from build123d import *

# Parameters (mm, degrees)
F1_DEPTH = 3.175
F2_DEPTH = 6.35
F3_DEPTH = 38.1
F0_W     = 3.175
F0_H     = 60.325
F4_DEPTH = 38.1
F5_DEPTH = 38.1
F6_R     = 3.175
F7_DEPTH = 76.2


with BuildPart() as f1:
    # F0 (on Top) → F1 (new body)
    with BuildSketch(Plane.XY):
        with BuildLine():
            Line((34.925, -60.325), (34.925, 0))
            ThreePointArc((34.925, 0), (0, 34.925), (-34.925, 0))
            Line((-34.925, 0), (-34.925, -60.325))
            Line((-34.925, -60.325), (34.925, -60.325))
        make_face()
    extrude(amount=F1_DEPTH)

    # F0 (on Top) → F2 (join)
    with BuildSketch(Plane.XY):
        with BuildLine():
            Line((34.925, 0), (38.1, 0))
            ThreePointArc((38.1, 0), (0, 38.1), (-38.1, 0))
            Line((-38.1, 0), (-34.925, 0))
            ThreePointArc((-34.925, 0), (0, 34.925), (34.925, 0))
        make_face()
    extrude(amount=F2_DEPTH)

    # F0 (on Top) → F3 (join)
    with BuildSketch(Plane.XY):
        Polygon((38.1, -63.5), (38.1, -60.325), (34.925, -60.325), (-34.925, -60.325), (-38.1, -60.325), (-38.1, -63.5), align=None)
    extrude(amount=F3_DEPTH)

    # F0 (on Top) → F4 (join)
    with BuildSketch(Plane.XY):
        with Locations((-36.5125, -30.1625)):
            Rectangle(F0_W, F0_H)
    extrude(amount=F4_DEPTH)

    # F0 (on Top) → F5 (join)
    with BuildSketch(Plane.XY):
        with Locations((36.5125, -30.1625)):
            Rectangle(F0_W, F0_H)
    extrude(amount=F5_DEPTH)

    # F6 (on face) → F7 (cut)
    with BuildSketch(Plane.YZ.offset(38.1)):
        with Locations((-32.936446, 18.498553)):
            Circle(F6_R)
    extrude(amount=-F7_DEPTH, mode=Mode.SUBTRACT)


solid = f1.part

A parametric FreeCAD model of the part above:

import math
import FreeCAD as App
import Part
import Sketcher

V = App.Vector
Q = App.Units.Quantity


def add_polygon(sketch, points):
    """Adds a closed chain of lines whose ends are joined by coincident constraints."""
    first, n = sketch.GeometryCount, len(points)
    for a, b in zip(points, points[1:] + points[:1]):
        sketch.addGeometry(Part.LineSegment(App.Vector(*a, 0), App.Vector(*b, 0)), False)
    for i in range(n):
        sketch.addConstraint(Sketcher.Constraint("Coincident", first + i, 2, first + (i + 1) % n, 1))

doc = App.newDocument("Part")
body = doc.addObject("PartDesign::Body", "Body")

sketch1 = body.newObject("Sketcher::SketchObject", "Sketch")
sketch1.AttachmentSupport = (doc.getObject("XY_Plane"), [""])
sketch1.MapMode = "FlatFace"
sketch1.addGeometry([
    Part.LineSegment(V(34.925, -60.325, 0), V(34.925, 0, 0)),
    Part.ArcOfCircle(Part.Circle(V(0, 0, 0), V(0, 0, 1), 34.925), math.radians(0), math.radians(180)),
    Part.LineSegment(V(-34.925, 0, 0), V(-34.925, -60.325, 0)),
    Part.LineSegment(V(-34.925, -60.325, 0), V(34.925, -60.325, 0)),
], False)
sketch1.addConstraint([
    Sketcher.Constraint("Tangent", 0, 2, 1, 1),
    Sketcher.Constraint("Tangent", 1, 2, 2, 1),
    Sketcher.Constraint("Coincident", 2, 2, 3, 1),
    Sketcher.Constraint("Coincident", 3, 2, 0, 1),
    Sketcher.Constraint("Vertical", 0),
    Sketcher.Constraint("Vertical", 2),
    Sketcher.Constraint("Horizontal", 3),
    Sketcher.Constraint("Coincident", 1, 3, -1, 1),
    Sketcher.Constraint("Radius", 1, Q("1.375 in")),
    Sketcher.Constraint("DistanceY", 0, 1, 0, 2, Q("2.375 in")),
])
pad1 = body.newObject("PartDesign::Pad", "Pad")
pad1.Profile = sketch1
pad1.Length = Q("0.125 in")

sketch2 = body.newObject("Sketcher::SketchObject", "Sketch001")
sketch2.AttachmentSupport = (doc.getObject("XY_Plane"), [""])
sketch2.MapMode = "FlatFace"
sketch2.addGeometry([
    Part.LineSegment(V(34.925, 0, 0), V(38.1, 0, 0)),
    Part.ArcOfCircle(Part.Circle(V(0, 0, 0), V(0, 0, 1), 38.1), math.radians(0), math.radians(180)),
    Part.LineSegment(V(-38.1, 0, 0), V(-34.925, 0, 0)),
    Part.ArcOfCircle(Part.Circle(V(0, 0, 0), V(0, 0, 1), 34.925), math.radians(0), math.radians(180)),
], False)
sketch2.addConstraint([
    Sketcher.Constraint("Coincident", 0, 2, 1, 1),
    Sketcher.Constraint("Coincident", 1, 2, 2, 1),
    Sketcher.Constraint("Coincident", 2, 2, 3, 2),
    Sketcher.Constraint("Coincident", 3, 1, 0, 1),
    Sketcher.Constraint("Horizontal", 0),
    Sketcher.Constraint("Horizontal", 2),
    Sketcher.Constraint("Coincident", 1, 3, -1, 1),
    Sketcher.Constraint("Coincident", 3, 3, -1, 1),
    Sketcher.Constraint("PointOnObject", 0, 2, -1),
    Sketcher.Constraint("PointOnObject", 1, 2, -1),
    Sketcher.Constraint("Radius", 1, Q("1.5 in")),
    Sketcher.Constraint("Radius", 3, Q("1.375 in")),
])
pad2 = body.newObject("PartDesign::Pad", "Pad001")
pad2.Profile = sketch2
pad2.Length = Q("0.25 in")

sketch3 = body.newObject("Sketcher::SketchObject", "Sketch002")
sketch3.AttachmentSupport = (doc.getObject("XY_Plane"), [""])
sketch3.MapMode = "FlatFace"
add_polygon(sketch3, [(38.1, -63.5), (38.1, -60.325), (-38.1, -60.325), (-38.1, -63.5)])
sketch3.addConstraint([
    Sketcher.Constraint("Vertical", 0),
    Sketcher.Constraint("Horizontal", 1),
    Sketcher.Constraint("Vertical", 2),
    Sketcher.Constraint("Horizontal", 3),
    Sketcher.Constraint("DistanceX", 1, 2, 1, 1, Q("3 in")),
    Sketcher.Constraint("DistanceX", -1, 1, 0, 2, Q("1.5 in")),
    Sketcher.Constraint("DistanceY", 2, 2, -1, 1, Q("2.5 in")),
    Sketcher.Constraint("DistanceY", 0, 1, 0, 2, Q("0.125 in")),
])
pad3 = body.newObject("PartDesign::Pad", "Pad002")
pad3.Profile = sketch3
pad3.Length = Q("1.5 in")

sketch4 = body.newObject("Sketcher::SketchObject", "Sketch003")
sketch4.AttachmentSupport = (doc.getObject("XY_Plane"), [""])
sketch4.MapMode = "FlatFace"
add_polygon(sketch4, [(-38.1, 0), (-38.1, -60.325), (-34.925, -60.325), (-34.925, 0)])
sketch4.addConstraint([
    Sketcher.Constraint("Vertical", 0),
    Sketcher.Constraint("Horizontal", 1),
    Sketcher.Constraint("Vertical", 2),
    Sketcher.Constraint("Horizontal", 3),
    Sketcher.Constraint("PointOnObject", 2, 2, -1),
    Sketcher.Constraint("DistanceX", 0, 2, -1, 1, Q("1.5 in")),
    Sketcher.Constraint("DistanceX", 1, 1, 1, 2, Q("0.125 in")),
    Sketcher.Constraint("DistanceY", 0, 2, 0, 1, Q("2.375 in")),
])
pad4 = body.newObject("PartDesign::Pad", "Pad003")
pad4.Profile = sketch4
pad4.Length = Q("1.5 in")

sketch5 = body.newObject("Sketcher::SketchObject", "Sketch004")
sketch5.AttachmentSupport = (doc.getObject("XY_Plane"), [""])
sketch5.MapMode = "FlatFace"
add_polygon(sketch5, [(34.925, 0), (34.925, -60.325), (38.1, -60.325), (38.1, 0)])
sketch5.addConstraint([
    Sketcher.Constraint("Vertical", 0),
    Sketcher.Constraint("Horizontal", 1),
    Sketcher.Constraint("Vertical", 2),
    Sketcher.Constraint("Horizontal", 3),
    Sketcher.Constraint("PointOnObject", 2, 2, -1),
    Sketcher.Constraint("DistanceX", -1, 1, 1, 2, Q("1.5 in")),
    Sketcher.Constraint("DistanceX", 1, 1, 1, 2, Q("0.125 in")),
    Sketcher.Constraint("DistanceY", 0, 2, 0, 1, Q("2.375 in")),
])
pad5 = body.newObject("PartDesign::Pad", "Pad004")
pad5.Profile = sketch5
pad5.Length = Q("1.5 in")

sketch6 = body.newObject("Sketcher::SketchObject", "Sketch005")
sketch6.AttachmentSupport = (doc.getObject("YZ_Plane"), [""])
sketch6.MapMode = "FlatFace"
sketch6.AttachmentOffset = App.Placement(V(0, 0, 1.5 * 25.4), App.Rotation())
sketch6.addGeometry(Part.Circle(V(-32.936446, 18.498553, 0), V(0, 0, 1), 3.175), False)
sketch6.addConstraint([
    Sketcher.Constraint("Diameter", 0, Q("0.25 in")),
    Sketcher.Constraint("DistanceX", 0, 3, -1, 1, 32.936446),
    Sketcher.Constraint("DistanceY", -1, 1, 0, 3, 18.498553),
])
pocket1 = body.newObject("PartDesign::Pocket", "Pocket")
pocket1.Profile = sketch6
pocket1.Length = Q("3 in")

doc.recompute()
